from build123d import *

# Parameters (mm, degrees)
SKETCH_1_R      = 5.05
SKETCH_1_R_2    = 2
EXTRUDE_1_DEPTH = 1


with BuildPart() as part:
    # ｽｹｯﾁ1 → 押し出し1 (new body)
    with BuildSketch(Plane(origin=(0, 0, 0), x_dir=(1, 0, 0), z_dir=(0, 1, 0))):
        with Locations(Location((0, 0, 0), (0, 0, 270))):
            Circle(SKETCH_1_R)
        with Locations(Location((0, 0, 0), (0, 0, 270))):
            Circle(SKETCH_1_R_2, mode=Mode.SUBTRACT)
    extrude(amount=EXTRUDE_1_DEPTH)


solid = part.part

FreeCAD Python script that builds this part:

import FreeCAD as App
import Part
import Sketcher

V = App.Vector
Q = App.Units.Quantity

doc = App.newDocument("Part")
body = doc.addObject("PartDesign::Body", "Body")

# Sketch on XZ plane
sketch1 = body.newObject("Sketcher::SketchObject", "Sketch")
sketch1.AttachmentSupport = (doc.getObject("XZ_Plane"), [""])
sketch1.MapMode = "FlatFace"
sketch1.addGeometry([
    Part.Circle(V(0, 0, 0), V(0, 0, 1), 5.05),
    Part.Circle(V(0, 0, 0), V(0, 0, 1), 2),
], False)
sketch1.addConstraint([
    Sketcher.Constraint("Coincident", 0, 3, -1, 1),
    Sketcher.Constraint("Coincident", 1, 3, -1, 1),
    Sketcher.Constraint("Diameter", 1, Q("4 mm")),
    Sketcher.Constraint("Diameter", 0, Q("10.1 mm")),
])
pad1 = body.newObject("PartDesign::Pad", "Pad")
pad1.Profile = sketch1
pad1.Length = 1
pad1.Reversed = True

doc.recompute()
